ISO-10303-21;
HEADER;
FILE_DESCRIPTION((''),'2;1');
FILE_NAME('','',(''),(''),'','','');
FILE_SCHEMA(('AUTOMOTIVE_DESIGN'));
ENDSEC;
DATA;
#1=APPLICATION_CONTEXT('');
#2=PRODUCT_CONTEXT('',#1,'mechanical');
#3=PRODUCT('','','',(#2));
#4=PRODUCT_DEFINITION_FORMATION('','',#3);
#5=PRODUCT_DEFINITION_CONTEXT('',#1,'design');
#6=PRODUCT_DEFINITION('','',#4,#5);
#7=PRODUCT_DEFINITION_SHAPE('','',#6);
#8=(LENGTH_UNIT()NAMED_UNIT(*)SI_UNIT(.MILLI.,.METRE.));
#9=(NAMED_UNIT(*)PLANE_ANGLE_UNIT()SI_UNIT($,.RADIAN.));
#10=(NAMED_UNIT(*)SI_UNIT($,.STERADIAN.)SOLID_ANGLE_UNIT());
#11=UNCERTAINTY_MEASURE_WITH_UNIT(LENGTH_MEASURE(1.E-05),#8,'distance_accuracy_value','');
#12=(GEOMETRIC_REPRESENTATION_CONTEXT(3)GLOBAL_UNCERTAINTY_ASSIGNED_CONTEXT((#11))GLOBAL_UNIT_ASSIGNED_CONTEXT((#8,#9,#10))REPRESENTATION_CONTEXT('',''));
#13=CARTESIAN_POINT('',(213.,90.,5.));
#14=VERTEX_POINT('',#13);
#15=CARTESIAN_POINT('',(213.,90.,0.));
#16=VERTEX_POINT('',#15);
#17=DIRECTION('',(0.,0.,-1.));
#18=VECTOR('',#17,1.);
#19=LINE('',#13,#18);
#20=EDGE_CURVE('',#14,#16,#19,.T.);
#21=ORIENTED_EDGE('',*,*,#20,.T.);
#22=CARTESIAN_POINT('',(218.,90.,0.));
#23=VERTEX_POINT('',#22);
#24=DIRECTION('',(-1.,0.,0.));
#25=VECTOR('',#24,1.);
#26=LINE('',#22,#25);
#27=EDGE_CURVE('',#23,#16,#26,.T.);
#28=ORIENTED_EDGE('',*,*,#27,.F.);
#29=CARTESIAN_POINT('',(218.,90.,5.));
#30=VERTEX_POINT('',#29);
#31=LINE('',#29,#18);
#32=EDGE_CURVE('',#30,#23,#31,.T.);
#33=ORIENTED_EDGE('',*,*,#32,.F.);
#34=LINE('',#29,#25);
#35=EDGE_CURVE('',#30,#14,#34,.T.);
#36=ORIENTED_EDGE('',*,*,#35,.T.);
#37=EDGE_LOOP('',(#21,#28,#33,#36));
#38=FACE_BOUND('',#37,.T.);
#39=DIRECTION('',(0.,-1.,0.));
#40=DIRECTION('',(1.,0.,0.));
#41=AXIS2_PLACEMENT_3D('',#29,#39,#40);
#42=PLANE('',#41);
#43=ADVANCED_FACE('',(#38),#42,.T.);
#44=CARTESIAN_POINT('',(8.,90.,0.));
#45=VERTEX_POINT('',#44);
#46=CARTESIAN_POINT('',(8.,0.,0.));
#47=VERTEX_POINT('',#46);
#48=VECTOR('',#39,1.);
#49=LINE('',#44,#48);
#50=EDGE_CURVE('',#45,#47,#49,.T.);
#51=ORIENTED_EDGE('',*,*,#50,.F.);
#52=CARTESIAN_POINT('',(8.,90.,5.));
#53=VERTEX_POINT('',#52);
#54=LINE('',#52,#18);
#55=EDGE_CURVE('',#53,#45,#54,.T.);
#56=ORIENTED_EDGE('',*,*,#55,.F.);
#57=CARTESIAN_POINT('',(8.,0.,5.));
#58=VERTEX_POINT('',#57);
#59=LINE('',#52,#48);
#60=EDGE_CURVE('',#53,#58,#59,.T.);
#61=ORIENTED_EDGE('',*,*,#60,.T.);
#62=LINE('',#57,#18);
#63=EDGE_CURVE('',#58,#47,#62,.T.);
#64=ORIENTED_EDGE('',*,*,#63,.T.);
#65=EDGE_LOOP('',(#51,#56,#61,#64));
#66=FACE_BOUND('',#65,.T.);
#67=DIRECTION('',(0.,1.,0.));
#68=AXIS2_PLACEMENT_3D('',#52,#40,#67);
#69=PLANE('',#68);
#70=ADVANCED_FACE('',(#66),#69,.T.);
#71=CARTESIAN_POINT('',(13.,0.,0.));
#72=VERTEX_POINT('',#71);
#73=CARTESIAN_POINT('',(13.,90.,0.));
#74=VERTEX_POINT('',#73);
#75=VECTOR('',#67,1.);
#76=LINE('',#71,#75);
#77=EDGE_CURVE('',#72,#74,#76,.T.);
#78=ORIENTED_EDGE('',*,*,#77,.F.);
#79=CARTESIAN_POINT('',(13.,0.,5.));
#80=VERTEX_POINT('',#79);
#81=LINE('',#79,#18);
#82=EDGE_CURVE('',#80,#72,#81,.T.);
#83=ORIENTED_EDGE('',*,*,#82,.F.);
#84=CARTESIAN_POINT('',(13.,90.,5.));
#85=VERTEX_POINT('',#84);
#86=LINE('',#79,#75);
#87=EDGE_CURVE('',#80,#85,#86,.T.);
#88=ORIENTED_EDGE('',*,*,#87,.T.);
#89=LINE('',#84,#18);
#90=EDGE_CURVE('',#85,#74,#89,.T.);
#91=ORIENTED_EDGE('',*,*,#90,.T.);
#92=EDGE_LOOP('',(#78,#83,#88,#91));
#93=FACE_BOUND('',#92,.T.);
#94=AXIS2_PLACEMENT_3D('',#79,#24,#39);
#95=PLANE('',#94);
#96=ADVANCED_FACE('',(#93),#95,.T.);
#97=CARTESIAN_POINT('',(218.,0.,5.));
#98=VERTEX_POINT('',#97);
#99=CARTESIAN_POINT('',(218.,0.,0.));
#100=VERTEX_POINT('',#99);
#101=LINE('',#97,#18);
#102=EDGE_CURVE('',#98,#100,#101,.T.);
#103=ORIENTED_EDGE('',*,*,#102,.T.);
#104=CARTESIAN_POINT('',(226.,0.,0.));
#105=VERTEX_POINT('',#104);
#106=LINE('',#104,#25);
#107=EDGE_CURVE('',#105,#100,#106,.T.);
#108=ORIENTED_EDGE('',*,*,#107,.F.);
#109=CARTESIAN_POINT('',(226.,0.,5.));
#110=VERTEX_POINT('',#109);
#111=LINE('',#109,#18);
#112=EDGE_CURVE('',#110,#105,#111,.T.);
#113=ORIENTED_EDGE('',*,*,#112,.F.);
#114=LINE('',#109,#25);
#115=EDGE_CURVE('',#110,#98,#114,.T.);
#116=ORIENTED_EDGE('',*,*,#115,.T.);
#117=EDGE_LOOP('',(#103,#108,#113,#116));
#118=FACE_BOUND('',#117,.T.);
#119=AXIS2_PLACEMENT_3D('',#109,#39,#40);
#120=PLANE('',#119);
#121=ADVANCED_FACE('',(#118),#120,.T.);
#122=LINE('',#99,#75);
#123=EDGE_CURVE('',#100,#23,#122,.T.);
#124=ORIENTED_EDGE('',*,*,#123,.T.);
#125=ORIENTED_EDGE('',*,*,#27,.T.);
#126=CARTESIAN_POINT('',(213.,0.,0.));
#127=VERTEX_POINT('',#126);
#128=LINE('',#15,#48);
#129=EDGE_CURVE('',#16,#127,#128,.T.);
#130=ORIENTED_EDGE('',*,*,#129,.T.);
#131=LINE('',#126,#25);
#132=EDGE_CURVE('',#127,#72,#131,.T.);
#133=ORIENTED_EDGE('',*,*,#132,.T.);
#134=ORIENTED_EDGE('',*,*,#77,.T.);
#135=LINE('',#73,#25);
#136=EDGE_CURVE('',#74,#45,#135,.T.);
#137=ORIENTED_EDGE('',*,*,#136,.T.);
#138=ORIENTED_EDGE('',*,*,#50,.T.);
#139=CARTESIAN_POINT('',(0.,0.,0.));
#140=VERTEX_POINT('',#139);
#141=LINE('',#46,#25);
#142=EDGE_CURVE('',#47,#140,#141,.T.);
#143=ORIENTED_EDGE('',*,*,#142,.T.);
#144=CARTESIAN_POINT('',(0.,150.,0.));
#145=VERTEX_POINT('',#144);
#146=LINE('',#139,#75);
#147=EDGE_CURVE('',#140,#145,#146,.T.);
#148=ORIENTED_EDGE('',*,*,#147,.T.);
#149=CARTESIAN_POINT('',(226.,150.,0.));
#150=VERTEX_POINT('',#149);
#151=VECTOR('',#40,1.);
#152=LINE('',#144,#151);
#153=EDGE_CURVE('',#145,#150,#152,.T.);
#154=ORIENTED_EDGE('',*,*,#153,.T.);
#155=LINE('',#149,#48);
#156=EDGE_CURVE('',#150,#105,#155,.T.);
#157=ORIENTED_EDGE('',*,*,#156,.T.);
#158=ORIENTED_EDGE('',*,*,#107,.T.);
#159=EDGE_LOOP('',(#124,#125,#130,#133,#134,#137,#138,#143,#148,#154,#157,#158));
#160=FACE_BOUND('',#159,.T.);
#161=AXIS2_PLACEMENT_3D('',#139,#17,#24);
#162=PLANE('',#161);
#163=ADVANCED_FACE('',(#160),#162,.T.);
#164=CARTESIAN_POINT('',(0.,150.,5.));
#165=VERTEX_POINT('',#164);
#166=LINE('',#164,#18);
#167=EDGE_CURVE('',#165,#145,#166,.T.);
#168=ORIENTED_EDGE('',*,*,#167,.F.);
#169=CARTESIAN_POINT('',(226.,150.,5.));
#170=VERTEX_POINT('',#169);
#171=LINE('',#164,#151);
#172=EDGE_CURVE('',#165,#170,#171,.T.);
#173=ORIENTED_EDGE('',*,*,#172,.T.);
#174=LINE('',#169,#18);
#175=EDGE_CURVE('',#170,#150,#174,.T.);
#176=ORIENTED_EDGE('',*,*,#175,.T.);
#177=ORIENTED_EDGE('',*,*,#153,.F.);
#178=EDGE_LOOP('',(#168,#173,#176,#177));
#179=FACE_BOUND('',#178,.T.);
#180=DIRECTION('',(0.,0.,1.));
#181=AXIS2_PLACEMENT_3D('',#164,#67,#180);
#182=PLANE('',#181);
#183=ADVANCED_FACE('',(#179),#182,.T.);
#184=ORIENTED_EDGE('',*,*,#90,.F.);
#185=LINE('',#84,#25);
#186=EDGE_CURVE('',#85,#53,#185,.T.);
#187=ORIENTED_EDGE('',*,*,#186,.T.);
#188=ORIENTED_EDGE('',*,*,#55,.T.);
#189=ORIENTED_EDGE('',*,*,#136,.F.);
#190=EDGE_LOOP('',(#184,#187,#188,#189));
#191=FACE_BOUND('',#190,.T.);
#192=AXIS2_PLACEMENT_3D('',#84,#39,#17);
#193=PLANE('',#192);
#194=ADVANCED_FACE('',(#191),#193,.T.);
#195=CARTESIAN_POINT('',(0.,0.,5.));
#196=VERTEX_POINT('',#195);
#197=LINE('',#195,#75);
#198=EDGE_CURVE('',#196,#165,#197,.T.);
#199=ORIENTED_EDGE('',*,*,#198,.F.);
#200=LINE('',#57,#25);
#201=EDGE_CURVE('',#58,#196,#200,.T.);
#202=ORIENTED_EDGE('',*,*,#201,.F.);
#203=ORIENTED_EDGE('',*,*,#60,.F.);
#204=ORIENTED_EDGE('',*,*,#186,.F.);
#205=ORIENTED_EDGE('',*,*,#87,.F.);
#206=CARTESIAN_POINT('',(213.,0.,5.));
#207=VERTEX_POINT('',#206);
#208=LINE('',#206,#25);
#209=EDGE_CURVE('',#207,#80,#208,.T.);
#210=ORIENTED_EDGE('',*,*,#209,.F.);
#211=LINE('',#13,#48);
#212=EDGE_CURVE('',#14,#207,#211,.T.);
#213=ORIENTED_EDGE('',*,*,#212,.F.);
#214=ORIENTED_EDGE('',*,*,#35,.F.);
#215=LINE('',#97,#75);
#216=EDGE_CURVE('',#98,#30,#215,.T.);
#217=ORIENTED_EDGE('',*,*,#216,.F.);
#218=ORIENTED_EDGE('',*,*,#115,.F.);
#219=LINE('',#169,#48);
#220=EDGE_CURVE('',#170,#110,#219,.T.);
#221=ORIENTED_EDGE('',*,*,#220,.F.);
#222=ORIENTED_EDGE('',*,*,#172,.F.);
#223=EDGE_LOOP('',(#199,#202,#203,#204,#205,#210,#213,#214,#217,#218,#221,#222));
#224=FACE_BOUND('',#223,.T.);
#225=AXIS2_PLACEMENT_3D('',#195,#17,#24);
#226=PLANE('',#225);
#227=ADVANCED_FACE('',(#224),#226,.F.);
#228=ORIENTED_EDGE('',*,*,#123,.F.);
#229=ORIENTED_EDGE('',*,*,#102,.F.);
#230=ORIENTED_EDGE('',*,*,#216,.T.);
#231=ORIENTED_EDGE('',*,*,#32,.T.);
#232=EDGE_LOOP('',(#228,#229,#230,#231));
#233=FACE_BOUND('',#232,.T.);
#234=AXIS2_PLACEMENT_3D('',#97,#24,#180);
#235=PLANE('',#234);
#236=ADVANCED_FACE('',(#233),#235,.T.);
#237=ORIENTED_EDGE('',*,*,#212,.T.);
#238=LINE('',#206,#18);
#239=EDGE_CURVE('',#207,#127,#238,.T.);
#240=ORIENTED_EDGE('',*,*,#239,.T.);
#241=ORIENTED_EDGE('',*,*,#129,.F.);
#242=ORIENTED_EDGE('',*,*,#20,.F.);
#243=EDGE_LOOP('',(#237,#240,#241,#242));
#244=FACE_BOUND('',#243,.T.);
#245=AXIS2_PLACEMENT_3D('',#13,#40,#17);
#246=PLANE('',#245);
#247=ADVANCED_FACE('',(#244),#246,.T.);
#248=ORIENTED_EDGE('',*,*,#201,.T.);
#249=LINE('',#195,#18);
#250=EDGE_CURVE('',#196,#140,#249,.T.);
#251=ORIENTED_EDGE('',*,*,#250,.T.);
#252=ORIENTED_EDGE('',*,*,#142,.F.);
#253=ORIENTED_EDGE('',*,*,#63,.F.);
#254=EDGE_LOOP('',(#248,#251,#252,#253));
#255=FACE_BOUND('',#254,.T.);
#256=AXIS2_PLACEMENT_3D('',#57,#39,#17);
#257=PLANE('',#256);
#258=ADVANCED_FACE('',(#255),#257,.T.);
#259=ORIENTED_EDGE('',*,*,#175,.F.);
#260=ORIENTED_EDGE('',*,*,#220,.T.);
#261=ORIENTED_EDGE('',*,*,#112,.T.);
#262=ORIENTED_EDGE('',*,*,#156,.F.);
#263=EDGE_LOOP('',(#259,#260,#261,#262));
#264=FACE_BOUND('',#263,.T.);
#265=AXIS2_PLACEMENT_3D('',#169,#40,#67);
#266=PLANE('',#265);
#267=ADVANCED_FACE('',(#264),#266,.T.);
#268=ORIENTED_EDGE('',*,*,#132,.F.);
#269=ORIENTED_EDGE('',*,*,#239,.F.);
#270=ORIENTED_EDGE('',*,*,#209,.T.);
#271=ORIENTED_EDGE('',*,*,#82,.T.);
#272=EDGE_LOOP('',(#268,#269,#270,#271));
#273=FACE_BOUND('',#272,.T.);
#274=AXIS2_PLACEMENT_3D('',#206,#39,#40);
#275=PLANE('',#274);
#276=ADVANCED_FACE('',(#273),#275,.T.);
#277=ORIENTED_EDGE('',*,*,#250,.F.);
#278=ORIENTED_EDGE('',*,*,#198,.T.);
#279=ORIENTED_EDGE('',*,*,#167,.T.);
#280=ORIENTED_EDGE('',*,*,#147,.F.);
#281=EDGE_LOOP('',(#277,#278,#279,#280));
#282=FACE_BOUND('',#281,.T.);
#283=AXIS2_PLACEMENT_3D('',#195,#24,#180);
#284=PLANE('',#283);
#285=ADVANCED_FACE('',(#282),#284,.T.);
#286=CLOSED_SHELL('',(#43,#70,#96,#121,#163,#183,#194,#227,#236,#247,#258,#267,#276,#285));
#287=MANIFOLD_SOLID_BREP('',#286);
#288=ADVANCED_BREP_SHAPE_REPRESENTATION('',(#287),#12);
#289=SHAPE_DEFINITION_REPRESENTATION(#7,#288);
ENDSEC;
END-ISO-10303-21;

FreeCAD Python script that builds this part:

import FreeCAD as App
import Part
import Sketcher

doc = App.newDocument("Part")
body = doc.addObject("PartDesign::Body", "Body")

sketch1 = body.newObject("Sketcher::SketchObject", "Sketch")
sketch1.AttachmentSupport = (doc.getObject("XY_Plane"), [""])
sketch1.MapMode = "FlatFace"
sketch1.addGeometry(Part.LineSegment(App.Vector(0, 150, 0), App.Vector(0, 0, 0)), False)
sketch1.addGeometry(Part.LineSegment(App.Vector(0, 0, 0), App.Vector(8, 0, 0)), False)
sketch1.addGeometry(Part.LineSegment(App.Vector(8, 0, 0), App.Vector(8, 90, 0)), False)
sketch1.addGeometry(Part.LineSegment(App.Vector(8, 90, 0), App.Vector(13, 90, 0)), False)
sketch1.addGeometry(Part.LineSegment(App.Vector(13, 90, 0), App.Vector(13, 0, 0)), False)
sketch1.addGeometry(Part.LineSegment(App.Vector(13, 0, 0), App.Vector(213, 0, 0)), False)
sketch1.addGeometry(Part.LineSegment(App.Vector(213, 0, 0), App.Vector(213, 90, 0)), False)
sketch1.addGeometry(Part.LineSegment(App.Vector(213, 90, 0), App.Vector(218, 90, 0)), False)
sketch1.addGeometry(Part.LineSegment(App.Vector(218, 90, 0), App.Vector(218, 0, 0)), False)
sketch1.addGeometry(Part.LineSegment(App.Vector(218, 0, 0), App.Vector(226, 0, 0)), False)
sketch1.addGeometry(Part.LineSegment(App.Vector(226, 0, 0), App.Vector(226, 150, 0)), False)
sketch1.addGeometry(Part.LineSegment(App.Vector(226, 150, 0), App.Vector(0, 150, 0)), False)
sketch1.addConstraint(Sketcher.Constraint("Coincident", 0, 2, 1, 1))
sketch1.addConstraint(Sketcher.Constraint("Coincident", 1, 2, 2, 1))
sketch1.addConstraint(Sketcher.Constraint("Coincident", 2, 2, 3, 1))
sketch1.addConstraint(Sketcher.Constraint("Coincident", 3, 2, 4, 1))
sketch1.addConstraint(Sketcher.Constraint("Coincident", 4, 2, 5, 1))
sketch1.addConstraint(Sketcher.Constraint("Coincident", 5, 2, 6, 1))
sketch1.addConstraint(Sketcher.Constraint("Coincident", 6, 2, 7, 1))
sketch1.addConstraint(Sketcher.Constraint("Coincident", 7, 2, 8, 1))
sketch1.addConstraint(Sketcher.Constraint("Coincident", 8, 2, 9, 1))
sketch1.addConstraint(Sketcher.Constraint("Coincident", 9, 2, 10, 1))
sketch1.addConstraint(Sketcher.Constraint("Coincident", 10, 2, 11, 1))
sketch1.addConstraint(Sketcher.Constraint("Coincident", 11, 2, 0, 1))
sketch1.addConstraint(Sketcher.Constraint("Vertical", 0))
sketch1.addConstraint(Sketcher.Constraint("Horizontal", 1))
sketch1.addConstraint(Sketcher.Constraint("Vertical", 2))
sketch1.addConstraint(Sketcher.Constraint("Horizontal", 3))
sketch1.addConstraint(Sketcher.Constraint("Vertical", 4))
sketch1.addConstraint(Sketcher.Constraint("Horizontal", 5))
sketch1.addConstraint(Sketcher.Constraint("Vertical", 6))
sketch1.addConstraint(Sketcher.Constraint("Horizontal", 7))
sketch1.addConstraint(Sketcher.Constraint("Vertical", 8))
sketch1.addConstraint(Sketcher.Constraint("Horizontal", 9))
sketch1.addConstraint(Sketcher.Constraint("Vertical", 10))
sketch1.addConstraint(Sketcher.Constraint("Horizontal", 11))
sketch1.addConstraint(Sketcher.Constraint("Coincident", 0, 2, -1, 1))
sketch1.addConstraint(Sketcher.Constraint("PointOnObject", 4, 2, -1))
sketch1.addConstraint(Sketcher.Constraint("PointOnObject", 8, 2, -1))
sketch1.addConstraint(Sketcher.Constraint("Horizontal", 3, 2, 6, 2))
sketch1.addConstraint(Sketcher.Constraint("Equal", 3, 7))
sketch1.addConstraint(Sketcher.Constraint("Equal", 1, 9))
sketch1.addConstraint(Sketcher.Constraint("DistanceX", 1, 1, 1, 2, 8.0))
sketch1.addConstraint(Sketcher.Constraint("DistanceX", 3, 1, 3, 2, 5.0))
sketch1.addConstraint(Sketcher.Constraint("DistanceX", 5, 1, 5, 2, 200.0))
sketch1.addConstraint(Sketcher.Constraint("DistanceY", 0, 2, 0, 1, 150.0))
sketch1.addConstraint(Sketcher.Constraint("DistanceY", 2, 1, 2, 2, 90.0))
pad1 = body.newObject("PartDesign::Pad", "Pad")
pad1.Profile = sketch1
pad1.Length = 5

doc.recompute()
